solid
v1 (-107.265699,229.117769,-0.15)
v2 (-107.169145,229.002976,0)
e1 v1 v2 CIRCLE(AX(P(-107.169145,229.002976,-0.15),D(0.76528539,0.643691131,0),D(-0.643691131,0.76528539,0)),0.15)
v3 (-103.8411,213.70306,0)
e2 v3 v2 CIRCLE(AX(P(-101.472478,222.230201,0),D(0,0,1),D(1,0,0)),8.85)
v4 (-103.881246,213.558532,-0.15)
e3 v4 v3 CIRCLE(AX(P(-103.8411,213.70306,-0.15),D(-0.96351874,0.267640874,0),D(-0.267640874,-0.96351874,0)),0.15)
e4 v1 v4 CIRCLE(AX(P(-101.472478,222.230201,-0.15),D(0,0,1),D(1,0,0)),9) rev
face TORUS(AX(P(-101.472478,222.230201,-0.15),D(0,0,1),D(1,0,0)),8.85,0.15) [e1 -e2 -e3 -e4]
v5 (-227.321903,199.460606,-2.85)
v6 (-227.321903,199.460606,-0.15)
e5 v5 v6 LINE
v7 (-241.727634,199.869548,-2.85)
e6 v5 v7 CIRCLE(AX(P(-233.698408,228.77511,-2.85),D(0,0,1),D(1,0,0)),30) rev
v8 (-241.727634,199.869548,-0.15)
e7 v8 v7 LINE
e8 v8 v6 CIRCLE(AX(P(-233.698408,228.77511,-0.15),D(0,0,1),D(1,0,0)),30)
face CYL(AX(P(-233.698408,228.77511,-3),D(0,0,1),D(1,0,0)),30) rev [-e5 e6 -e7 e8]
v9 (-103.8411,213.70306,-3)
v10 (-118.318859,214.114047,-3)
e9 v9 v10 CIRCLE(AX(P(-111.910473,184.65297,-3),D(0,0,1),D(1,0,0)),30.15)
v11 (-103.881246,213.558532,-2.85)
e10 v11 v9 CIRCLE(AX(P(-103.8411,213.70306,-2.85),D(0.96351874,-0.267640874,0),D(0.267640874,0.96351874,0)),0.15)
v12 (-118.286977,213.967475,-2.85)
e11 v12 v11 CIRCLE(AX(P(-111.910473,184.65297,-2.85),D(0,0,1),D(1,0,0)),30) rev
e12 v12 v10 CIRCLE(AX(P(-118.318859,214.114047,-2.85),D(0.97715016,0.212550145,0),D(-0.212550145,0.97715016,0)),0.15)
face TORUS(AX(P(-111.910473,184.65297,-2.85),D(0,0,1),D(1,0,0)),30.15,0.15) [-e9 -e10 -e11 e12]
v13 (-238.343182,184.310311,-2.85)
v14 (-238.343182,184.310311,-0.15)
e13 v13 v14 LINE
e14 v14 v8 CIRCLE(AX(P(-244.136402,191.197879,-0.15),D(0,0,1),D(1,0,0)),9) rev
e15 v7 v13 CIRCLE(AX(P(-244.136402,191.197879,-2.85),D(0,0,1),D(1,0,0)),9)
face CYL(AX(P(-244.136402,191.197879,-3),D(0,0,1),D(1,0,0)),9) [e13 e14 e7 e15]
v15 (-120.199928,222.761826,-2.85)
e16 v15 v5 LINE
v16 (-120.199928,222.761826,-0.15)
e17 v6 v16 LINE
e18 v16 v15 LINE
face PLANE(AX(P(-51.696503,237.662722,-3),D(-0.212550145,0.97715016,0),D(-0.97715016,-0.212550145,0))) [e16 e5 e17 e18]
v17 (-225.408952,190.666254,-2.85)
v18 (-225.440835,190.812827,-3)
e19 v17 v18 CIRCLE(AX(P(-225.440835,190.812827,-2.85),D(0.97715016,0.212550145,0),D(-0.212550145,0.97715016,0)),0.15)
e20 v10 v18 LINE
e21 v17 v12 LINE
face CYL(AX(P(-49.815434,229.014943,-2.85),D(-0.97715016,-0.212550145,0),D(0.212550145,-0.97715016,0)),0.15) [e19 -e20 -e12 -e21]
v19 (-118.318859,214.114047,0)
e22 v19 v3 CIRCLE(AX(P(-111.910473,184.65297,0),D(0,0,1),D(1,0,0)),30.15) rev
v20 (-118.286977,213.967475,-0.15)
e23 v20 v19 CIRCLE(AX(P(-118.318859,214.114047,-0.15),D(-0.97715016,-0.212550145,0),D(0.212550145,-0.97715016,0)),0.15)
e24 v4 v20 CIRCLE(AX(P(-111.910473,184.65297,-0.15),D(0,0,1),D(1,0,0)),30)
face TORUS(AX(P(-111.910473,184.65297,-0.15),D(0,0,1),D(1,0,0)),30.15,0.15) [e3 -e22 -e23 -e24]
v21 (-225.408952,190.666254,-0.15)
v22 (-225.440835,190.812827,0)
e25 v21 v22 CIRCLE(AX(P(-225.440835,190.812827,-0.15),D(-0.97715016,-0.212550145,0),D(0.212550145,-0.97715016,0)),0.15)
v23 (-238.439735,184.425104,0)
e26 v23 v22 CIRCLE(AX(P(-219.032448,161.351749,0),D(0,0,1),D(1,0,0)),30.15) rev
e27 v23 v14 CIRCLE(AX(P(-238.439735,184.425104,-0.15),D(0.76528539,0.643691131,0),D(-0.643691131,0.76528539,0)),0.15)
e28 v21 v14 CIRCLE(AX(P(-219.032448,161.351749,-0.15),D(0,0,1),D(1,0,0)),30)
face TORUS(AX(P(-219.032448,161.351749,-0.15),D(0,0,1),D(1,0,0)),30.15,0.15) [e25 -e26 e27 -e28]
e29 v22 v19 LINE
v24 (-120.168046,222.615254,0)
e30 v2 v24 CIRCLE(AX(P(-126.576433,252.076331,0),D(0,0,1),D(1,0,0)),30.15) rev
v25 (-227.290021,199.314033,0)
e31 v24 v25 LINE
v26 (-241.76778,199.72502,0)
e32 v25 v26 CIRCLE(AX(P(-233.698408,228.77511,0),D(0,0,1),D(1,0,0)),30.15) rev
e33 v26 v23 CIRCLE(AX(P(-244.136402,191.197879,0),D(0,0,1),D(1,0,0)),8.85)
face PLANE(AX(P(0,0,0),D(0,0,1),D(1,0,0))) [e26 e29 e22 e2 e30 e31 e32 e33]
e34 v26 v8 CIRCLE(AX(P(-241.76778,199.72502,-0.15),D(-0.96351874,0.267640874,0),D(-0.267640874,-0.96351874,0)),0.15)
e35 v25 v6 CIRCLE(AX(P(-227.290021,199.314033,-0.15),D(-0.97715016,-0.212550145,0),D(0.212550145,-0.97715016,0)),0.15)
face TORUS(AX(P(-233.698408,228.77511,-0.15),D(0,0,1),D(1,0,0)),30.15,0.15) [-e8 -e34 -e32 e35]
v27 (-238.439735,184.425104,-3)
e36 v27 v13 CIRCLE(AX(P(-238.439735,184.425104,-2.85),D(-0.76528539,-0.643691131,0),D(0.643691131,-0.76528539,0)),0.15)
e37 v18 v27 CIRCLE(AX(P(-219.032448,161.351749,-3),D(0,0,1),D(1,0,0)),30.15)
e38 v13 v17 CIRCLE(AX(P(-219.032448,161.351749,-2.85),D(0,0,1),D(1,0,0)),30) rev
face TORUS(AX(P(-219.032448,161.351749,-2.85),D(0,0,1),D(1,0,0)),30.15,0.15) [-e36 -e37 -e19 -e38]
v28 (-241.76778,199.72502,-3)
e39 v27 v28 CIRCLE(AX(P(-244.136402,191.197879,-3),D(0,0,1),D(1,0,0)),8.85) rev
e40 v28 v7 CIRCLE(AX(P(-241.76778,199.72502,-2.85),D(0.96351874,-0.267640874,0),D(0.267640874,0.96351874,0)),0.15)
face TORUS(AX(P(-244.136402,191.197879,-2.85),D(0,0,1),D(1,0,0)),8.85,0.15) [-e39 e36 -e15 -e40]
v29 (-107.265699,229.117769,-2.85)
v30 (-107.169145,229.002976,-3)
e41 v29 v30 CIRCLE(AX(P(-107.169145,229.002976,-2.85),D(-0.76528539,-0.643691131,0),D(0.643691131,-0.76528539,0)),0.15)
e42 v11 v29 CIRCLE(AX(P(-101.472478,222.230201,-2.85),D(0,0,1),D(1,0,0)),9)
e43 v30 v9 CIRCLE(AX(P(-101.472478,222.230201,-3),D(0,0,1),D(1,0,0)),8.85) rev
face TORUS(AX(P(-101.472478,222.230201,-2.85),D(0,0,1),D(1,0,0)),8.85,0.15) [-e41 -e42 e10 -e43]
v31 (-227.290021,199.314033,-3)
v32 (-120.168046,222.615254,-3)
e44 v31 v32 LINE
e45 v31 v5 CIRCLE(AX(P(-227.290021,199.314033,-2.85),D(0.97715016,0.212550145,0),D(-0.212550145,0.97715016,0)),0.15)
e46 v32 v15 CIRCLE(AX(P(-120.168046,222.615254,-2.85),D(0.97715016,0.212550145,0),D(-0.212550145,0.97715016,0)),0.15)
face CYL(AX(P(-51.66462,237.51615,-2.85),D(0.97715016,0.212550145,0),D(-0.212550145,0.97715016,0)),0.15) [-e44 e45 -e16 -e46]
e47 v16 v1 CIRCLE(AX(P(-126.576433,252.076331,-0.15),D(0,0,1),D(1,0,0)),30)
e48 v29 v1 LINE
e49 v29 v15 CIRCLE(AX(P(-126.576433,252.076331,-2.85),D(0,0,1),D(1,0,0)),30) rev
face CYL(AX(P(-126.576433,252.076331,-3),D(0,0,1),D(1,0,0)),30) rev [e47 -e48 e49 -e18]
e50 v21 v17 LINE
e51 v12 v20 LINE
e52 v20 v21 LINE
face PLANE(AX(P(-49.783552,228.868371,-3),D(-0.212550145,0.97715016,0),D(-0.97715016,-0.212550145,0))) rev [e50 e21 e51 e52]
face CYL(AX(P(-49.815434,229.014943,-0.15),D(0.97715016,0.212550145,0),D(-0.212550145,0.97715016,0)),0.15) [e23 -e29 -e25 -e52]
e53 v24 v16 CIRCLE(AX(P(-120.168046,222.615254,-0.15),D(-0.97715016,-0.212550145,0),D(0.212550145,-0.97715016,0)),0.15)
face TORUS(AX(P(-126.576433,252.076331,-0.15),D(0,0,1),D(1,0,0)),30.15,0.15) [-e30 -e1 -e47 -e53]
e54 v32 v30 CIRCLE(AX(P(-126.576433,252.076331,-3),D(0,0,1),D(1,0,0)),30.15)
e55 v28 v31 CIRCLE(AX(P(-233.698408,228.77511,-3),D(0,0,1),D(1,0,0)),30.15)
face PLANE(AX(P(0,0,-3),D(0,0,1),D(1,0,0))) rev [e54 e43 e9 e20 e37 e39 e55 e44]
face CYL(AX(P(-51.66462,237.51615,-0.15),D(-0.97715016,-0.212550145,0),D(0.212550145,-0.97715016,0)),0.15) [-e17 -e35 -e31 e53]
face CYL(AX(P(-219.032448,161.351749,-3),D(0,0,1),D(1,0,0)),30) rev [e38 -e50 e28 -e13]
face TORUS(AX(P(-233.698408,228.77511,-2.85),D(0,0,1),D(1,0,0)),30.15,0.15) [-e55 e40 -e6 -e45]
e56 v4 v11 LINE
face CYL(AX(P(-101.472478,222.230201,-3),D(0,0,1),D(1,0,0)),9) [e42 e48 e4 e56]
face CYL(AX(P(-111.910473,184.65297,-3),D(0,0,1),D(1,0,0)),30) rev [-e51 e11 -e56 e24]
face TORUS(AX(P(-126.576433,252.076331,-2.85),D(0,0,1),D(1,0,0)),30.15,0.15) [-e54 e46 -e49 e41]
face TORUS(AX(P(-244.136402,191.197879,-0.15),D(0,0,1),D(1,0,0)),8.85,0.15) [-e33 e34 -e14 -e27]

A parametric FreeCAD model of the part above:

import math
import FreeCAD as App
import Part
import Sketcher
from FreeCAD import Vector
Q = App.Units.Quantity


def edges_at(feature, points):
    """Names of the edges that pass closest to the given points."""
    edges = feature.Shape.Edges
    near = lambda p: min(range(len(edges)), key=lambda i: edges[i].distToShape(Part.Vertex(*p))[0])
    return sorted({f"Edge{near(p) + 1}" for p in points})

doc = App.newDocument("Part")
body = doc.addObject("PartDesign::Body", "Body")

# Sketch on XY plane
sketch1 = doc.addObject("Sketcher::SketchObject", "Sketch")
body.addObject(sketch1)
sketch1.AttachmentSupport = (doc.XY_Plane, [""])
sketch1.MapMode = "FlatFace"
sketch1.addGeometry(Part.LineSegment(Vector(-110, 225, 0), Vector(-237, 197, 0)), False)
sketch1.addGeometry(Part.ArcOfCircle(Part.Circle(Vector(-244, 191, 0), Vector(0, 0, 1), 9), math.radians(42), math.radians(342)), False)
sketch1.addGeometry(Part.LineSegment(Vector(-236, 188, 0), Vector(-108, 216, 0)), False)
sketch1.addGeometry(Part.ArcOfCircle(Part.Circle(Vector(-101, 222, 0), Vector(0, 0, 1), 9), math.radians(-138), math.radians(162)), False)
sketch1.addConstraint(Sketcher.Constraint("Coincident", 0, 2, 1, 1))
sketch1.addConstraint(Sketcher.Constraint("Coincident", 1, 2, 2, 1))
sketch1.addConstraint(Sketcher.Constraint("Coincident", 2, 2, 3, 1))
sketch1.addConstraint(Sketcher.Constraint("Coincident", 3, 2, 0, 1))
sketch1.addConstraint(Sketcher.Constraint("Equal", 1, 3))
sketch1.addConstraint(Sketcher.Constraint("Parallel", 0, 2))
sketch1.addConstraint(Sketcher.Constraint("Equal", 0, 2))
sketch1.addConstraint(Sketcher.Constraint("Radius", 1, Q("9 mm")))
sketch1.addConstraint(Sketcher.Constraint("DistanceX", 1, 3, -1, 1, Q("244.136402 mm")))
sketch1.addConstraint(Sketcher.Constraint("DistanceY", -1, 1, 3, 3, Q("222.230201 mm")))
sketch1.addConstraint(Sketcher.Constraint("DistanceY", -1, 1, 1, 3, Q("191.197879 mm")))
sketch1.addConstraint(Sketcher.Constraint("DistanceX", 3, 3, -1, 1, Q("101.472478 mm")))
sketch1.addConstraint(Sketcher.Constraint("DistanceY", -1, 1, 0, 2, Q("197.25172 mm")))
sketch1.addConstraint(Sketcher.Constraint("DistanceY", -1, 1, 1, 2, Q("188.457368 mm")))
pad1 = doc.addObject("PartDesign::Pad", "Pad")
body.addObject(pad1)
pad1.Profile = sketch1
pad1.Length = 3
pad1.Reversed = True
doc.recompute()

fillet = doc.addObject("PartDesign::Fillet", "Fillet")
body.addObject(fillet)
fillet.Base = (pad1, edges_at(pad1, [
    (-108.132, 216.176, -1.5),
    (-235.564, 188.457, -1.5),
    (-237.477, 197.252, -1.5),
    (-110.045, 224.971, -1.5),
]))
fillet.Radius = 30
doc.recompute()

fillet2 = doc.addObject("PartDesign::Fillet", "Fillet001")
body.addObject(fillet2)
fillet2.Base = (fillet, edges_at(fillet, [
    (-173.761, 211.111, 0),
    (-173.761, 211.111, -3),
    (-252.931, 189.285, 0),
    (-252.931, 189.285, -3),
    (-171.848, 202.317, 0),
    (-171.848, 202.317, -3),
    (-92.678, 224.143, 0),
    (-92.678, 224.143, -3),
    (-234.55, 198.787, 0),
    (-234.55, 198.787, -3),
    (-232.263, 188.276, 0),
    (-232.263, 188.276, -3),
    (-111.059, 214.641, 0),
    (-111.059, 214.641, -3),
    (-113.345, 225.152, 0),
    (-113.345, 225.152, -3),
]))
fillet2.Radius = 0.15

doc.recompute()
